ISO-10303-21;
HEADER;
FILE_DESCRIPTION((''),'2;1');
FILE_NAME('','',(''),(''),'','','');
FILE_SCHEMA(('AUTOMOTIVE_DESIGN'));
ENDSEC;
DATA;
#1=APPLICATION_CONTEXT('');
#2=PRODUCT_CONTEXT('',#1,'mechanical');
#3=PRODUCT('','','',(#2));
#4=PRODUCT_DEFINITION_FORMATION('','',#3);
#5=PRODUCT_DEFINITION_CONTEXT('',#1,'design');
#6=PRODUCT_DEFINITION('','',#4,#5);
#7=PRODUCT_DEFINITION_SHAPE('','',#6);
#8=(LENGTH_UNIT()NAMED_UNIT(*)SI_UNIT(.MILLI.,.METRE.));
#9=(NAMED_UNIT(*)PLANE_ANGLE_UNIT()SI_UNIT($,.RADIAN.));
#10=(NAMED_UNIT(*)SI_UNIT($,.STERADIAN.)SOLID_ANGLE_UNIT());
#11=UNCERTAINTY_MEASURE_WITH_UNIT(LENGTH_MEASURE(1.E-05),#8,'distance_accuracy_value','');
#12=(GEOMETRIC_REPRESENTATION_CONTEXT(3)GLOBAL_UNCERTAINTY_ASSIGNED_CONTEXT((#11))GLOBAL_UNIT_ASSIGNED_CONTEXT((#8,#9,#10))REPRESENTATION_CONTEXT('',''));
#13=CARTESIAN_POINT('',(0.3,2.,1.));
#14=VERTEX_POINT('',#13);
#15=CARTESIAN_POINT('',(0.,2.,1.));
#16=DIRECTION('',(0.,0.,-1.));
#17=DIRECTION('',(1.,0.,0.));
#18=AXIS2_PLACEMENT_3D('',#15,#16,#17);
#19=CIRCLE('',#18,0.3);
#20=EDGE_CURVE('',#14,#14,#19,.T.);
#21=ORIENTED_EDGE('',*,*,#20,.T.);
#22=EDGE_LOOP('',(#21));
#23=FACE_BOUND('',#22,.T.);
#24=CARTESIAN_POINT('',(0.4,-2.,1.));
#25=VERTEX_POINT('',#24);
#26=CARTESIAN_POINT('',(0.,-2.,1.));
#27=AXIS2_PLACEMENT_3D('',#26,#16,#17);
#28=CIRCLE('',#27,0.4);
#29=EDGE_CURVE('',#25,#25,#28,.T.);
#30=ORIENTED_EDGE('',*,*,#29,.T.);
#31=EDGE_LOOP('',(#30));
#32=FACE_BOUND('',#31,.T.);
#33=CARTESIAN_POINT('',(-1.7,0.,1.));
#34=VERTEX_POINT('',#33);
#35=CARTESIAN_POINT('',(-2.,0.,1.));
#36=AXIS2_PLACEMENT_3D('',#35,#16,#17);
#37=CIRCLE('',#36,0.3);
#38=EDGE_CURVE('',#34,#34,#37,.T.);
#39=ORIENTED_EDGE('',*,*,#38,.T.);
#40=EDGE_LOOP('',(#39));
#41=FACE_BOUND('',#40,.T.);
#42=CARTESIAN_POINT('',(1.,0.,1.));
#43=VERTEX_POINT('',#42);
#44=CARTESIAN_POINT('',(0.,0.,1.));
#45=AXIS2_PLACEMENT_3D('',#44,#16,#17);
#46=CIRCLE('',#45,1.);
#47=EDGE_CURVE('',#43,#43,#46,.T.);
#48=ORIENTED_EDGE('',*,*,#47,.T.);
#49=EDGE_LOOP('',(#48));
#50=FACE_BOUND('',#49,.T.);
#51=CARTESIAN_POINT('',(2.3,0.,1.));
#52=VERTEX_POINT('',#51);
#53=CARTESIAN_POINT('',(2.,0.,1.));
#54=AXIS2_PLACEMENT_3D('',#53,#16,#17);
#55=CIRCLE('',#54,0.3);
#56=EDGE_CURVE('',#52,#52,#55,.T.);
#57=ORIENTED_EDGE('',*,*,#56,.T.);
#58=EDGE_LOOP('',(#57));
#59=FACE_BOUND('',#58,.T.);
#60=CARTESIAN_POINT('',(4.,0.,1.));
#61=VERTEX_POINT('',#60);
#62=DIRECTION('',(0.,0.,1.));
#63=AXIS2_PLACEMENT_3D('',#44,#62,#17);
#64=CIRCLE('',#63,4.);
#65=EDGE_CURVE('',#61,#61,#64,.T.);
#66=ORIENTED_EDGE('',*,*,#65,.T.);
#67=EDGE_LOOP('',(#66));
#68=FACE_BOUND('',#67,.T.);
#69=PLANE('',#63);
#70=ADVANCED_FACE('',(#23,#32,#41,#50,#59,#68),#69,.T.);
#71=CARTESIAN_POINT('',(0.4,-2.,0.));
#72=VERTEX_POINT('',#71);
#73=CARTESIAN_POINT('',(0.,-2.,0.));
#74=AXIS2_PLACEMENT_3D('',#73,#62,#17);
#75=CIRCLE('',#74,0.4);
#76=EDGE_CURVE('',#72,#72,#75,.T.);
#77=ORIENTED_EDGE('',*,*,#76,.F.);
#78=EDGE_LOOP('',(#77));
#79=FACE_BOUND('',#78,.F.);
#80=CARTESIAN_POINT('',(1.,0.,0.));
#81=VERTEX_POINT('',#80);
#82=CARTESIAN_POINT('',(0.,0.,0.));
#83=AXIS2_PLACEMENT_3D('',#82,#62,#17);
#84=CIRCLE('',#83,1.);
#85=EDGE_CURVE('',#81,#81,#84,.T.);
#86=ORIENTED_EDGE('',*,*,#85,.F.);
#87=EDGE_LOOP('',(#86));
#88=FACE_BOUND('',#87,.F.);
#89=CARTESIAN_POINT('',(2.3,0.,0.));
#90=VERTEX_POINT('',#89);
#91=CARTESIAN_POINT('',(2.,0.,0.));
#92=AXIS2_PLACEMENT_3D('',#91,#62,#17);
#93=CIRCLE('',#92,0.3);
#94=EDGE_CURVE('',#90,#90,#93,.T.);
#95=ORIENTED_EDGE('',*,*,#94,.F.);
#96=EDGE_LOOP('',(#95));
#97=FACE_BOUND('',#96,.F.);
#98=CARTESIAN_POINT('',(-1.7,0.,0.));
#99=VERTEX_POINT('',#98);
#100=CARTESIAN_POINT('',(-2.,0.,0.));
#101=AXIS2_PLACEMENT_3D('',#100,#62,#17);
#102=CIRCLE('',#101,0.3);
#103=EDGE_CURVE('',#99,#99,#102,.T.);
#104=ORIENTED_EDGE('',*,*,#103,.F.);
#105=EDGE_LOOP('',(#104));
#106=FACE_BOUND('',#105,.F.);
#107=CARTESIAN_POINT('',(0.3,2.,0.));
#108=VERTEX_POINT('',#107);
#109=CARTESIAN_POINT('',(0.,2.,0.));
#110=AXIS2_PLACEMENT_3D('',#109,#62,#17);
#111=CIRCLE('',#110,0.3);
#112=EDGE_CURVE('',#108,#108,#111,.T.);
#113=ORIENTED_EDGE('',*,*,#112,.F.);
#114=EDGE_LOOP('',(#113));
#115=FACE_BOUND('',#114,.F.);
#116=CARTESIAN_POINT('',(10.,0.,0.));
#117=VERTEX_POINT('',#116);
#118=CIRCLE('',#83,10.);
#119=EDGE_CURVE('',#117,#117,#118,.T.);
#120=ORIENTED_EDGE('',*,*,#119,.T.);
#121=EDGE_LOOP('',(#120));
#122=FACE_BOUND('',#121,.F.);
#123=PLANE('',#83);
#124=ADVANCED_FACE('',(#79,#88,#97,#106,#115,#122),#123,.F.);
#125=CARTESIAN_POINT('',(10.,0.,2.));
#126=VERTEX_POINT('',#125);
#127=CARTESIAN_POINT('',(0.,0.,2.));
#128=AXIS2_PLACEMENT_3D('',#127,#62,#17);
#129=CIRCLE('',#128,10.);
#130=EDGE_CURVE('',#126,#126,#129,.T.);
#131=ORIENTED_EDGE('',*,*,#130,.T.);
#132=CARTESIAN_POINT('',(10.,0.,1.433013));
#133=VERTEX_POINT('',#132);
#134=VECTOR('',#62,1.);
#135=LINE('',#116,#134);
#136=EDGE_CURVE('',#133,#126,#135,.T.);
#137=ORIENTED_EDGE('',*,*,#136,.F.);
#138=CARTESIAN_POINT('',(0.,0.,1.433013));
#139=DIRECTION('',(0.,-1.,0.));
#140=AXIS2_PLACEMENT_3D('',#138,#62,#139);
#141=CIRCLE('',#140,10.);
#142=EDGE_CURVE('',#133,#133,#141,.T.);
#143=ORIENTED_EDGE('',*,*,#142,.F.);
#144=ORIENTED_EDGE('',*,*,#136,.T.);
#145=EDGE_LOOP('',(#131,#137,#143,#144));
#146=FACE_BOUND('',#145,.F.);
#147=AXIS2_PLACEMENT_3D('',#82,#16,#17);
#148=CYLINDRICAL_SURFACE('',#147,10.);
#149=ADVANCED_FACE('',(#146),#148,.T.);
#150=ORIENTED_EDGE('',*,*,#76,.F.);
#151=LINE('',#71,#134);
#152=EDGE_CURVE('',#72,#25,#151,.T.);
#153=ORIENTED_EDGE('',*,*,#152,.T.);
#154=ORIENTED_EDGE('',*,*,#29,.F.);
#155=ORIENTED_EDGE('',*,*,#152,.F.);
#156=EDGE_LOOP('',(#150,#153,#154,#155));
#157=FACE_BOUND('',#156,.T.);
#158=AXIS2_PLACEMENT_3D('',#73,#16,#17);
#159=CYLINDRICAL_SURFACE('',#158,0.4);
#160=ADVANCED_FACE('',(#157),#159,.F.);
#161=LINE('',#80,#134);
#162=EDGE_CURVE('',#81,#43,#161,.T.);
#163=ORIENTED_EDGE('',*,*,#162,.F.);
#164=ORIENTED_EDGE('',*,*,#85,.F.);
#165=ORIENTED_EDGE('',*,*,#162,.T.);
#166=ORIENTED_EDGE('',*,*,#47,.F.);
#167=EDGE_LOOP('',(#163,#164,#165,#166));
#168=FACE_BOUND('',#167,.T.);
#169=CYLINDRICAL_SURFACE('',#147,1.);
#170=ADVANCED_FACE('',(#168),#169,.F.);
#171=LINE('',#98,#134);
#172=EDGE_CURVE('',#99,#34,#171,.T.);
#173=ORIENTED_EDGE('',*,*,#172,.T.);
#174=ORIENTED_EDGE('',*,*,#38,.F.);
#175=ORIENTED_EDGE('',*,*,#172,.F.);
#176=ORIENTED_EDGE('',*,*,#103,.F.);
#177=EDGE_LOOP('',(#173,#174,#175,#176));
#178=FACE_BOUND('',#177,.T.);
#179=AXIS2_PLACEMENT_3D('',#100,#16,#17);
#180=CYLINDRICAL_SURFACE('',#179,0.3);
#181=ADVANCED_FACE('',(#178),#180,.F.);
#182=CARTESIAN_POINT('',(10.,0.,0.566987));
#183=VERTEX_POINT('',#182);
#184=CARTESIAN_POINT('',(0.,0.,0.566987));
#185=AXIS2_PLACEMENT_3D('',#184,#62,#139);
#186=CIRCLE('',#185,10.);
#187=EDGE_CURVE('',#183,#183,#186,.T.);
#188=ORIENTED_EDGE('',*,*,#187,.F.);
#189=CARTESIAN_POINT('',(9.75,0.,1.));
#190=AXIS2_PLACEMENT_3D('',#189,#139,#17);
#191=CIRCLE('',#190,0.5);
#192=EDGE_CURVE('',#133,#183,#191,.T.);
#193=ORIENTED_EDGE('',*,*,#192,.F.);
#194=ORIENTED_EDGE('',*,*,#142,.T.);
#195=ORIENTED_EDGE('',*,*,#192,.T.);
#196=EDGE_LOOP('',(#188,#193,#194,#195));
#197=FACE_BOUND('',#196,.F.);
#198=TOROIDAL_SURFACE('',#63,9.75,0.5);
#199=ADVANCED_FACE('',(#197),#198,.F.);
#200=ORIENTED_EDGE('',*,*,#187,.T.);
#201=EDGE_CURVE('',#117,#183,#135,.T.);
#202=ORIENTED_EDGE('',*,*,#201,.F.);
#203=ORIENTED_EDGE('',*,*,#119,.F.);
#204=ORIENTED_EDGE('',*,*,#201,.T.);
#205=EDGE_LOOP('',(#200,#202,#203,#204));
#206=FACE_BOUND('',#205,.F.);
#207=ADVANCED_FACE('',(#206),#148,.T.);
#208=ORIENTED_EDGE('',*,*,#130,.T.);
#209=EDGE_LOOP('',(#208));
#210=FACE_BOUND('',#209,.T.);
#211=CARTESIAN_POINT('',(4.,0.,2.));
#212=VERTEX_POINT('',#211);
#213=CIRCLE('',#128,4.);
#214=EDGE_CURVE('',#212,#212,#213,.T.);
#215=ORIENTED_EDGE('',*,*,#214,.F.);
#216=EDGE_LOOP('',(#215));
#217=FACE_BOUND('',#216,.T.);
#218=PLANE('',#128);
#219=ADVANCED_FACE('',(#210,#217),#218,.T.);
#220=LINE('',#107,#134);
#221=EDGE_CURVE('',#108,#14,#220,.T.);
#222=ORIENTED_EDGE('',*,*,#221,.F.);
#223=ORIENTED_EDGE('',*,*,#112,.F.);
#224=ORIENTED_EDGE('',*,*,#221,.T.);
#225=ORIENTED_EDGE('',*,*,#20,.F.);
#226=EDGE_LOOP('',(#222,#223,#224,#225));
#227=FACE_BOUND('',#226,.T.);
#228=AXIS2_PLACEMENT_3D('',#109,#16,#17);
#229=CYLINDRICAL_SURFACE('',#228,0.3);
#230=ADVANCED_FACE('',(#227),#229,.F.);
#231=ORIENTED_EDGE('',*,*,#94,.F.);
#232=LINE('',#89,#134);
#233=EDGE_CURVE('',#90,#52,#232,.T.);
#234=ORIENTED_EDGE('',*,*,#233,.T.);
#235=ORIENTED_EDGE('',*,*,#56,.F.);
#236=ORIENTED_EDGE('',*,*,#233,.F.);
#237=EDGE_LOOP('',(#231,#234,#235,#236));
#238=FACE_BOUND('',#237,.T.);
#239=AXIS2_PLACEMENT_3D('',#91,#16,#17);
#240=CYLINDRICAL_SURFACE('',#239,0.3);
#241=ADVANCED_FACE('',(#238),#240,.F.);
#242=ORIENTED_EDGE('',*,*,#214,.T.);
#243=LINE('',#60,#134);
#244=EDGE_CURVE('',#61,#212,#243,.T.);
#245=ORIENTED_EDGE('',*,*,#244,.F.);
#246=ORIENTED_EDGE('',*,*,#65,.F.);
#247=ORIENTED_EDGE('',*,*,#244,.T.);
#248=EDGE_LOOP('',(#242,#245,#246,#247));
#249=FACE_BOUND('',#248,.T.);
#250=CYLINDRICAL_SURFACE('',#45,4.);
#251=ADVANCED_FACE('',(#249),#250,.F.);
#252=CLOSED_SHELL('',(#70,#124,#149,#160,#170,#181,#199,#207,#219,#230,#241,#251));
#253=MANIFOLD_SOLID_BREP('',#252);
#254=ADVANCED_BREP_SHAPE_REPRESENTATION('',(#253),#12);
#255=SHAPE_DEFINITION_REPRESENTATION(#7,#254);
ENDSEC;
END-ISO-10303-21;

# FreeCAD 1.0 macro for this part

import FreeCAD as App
import Part
import Sketcher

doc = App.newDocument("Part")
body = doc.addObject("PartDesign::Body", "Body")

sketch1 = body.newObject("Sketcher::SketchObject", "Sketch")
sketch1.AttachmentSupport = (doc.getObject("XY_Plane"), [""])
sketch1.MapMode = "FlatFace"
sketch1.addGeometry(Part.Circle(App.Vector(0, -2, 0), App.Vector(0, 0, 1), 0.4), False)
sketch1.addConstraint([
    Sketcher.Constraint("PointOnObject", 0, 3, -2),
    Sketcher.Constraint("Diameter", 0, 0.8),
    Sketcher.Constraint("DistanceY", 0, 3, -1, 1, 2.0),
])
pad1 = body.newObject("PartDesign::Pad", "Pad")
pad1.Profile = sketch1
pad1.Length = 10
body2 = doc.addObject("PartDesign::Body", "Body001")

sketch2 = body2.newObject("Sketcher::SketchObject", "Sketch001")
sketch2.AttachmentSupport = (doc.getObject("XY_Plane001"), [""])
sketch2.MapMode = "FlatFace"
sketch2.addGeometry(Part.Circle(App.Vector(0, 2, 0), App.Vector(0, 0, 1), 0.3), False)
sketch2.addConstraint([
    Sketcher.Constraint("PointOnObject", 0, 3, -2),
    Sketcher.Constraint("Diameter", 0, 0.6),
    Sketcher.Constraint("DistanceY", -1, 1, 0, 3, 2.0),
])
pad2 = body2.newObject("PartDesign::Pad", "Pad001")
pad2.Profile = sketch2
pad2.Length = 10
body3 = doc.addObject("PartDesign::Body", "Body002")

sketch3 = body3.newObject("Sketcher::SketchObject", "Sketch002")
sketch3.AttachmentSupport = (doc.getObject("XY_Plane002"), [""])
sketch3.MapMode = "FlatFace"
sketch3.addGeometry(Part.Circle(App.Vector(2, 0, 0), App.Vector(0, 0, 1), 0.3), False)
sketch3.addConstraint([
    Sketcher.Constraint("PointOnObject", 0, 3, -1),
    Sketcher.Constraint("Diameter", 0, 0.6),
    Sketcher.Constraint("DistanceX", -1, 1, 0, 3, 2.0),
])
pad3 = body3.newObject("PartDesign::Pad", "Pad002")
pad3.Profile = sketch3
pad3.Length = 10
body4 = doc.addObject("PartDesign::Body", "Body003")

sketch4 = body4.newObject("Sketcher::SketchObject", "Sketch003")
sketch4.AttachmentSupport = (doc.getObject("XY_Plane003"), [""])
sketch4.MapMode = "FlatFace"
sketch4.addGeometry(Part.Circle(App.Vector(-2, 0, 0), App.Vector(0, 0, 1), 0.3), False)
sketch4.addConstraint([
    Sketcher.Constraint("PointOnObject", 0, 3, -1),
    Sketcher.Constraint("Diameter", 0, 0.6),
    Sketcher.Constraint("DistanceX", 0, 3, -1, 1, 2.0),
])
pad4 = body4.newObject("PartDesign::Pad", "Pad003")
pad4.Profile = sketch4
pad4.Length = 10
body5 = doc.addObject("PartDesign::Body", "Body004")

sketch5 = body5.newObject("Sketcher::SketchObject", "Sketch004")
sketch5.AttachmentSupport = (doc.getObject("XY_Plane004"), [""])
sketch5.MapMode = "FlatFace"
sketch5.addGeometry(Part.Circle(App.Vector(0, 0, 0), App.Vector(0, 0, 1), 1), False)
sketch5.addConstraint([
    Sketcher.Constraint("Coincident", 0, 3, -1, 1),
    Sketcher.Constraint("Diameter", 0, 2.0),
])
pad5 = body5.newObject("PartDesign::Pad", "Pad004")
pad5.Profile = sketch5
pad5.Length = 10
body6 = doc.addObject("PartDesign::Body", "Body005")

sketch6 = body6.newObject("Sketcher::SketchObject", "Sketch005")
sketch6.AttachmentSupport = (doc.getObject("XY_Plane005"), [""])
sketch6.MapMode = "FlatFace"
sketch6.AttachmentOffset = App.Placement(App.Vector(0, 0, 1), App.Rotation())
sketch6.addGeometry(Part.Circle(App.Vector(0, 0, 0), App.Vector(0, 0, 1), 4), False)
sketch6.addConstraint([
    Sketcher.Constraint("Coincident", 0, 3, -1, 1),
    Sketcher.Constraint("Diameter", 0, 8.0),
])
pad6 = body6.newObject("PartDesign::Pad", "Pad005")
pad6.Profile = sketch6
pad6.Length = 1
body7 = doc.addObject("PartDesign::Body", "Body006")

sketch7 = body7.newObject("Sketcher::SketchObject", "Sketch006")
sketch7.AttachmentSupport = (doc.getObject("XZ_Plane006"), [""])
sketch7.MapMode = "FlatFace"
sketch7.addGeometry(Part.Circle(App.Vector(9.8, 1, 0), App.Vector(0, 0, 1), 0.5), False)
sketch7.addConstraint([
    Sketcher.Constraint("Diameter", 0, 1.0),
    Sketcher.Constraint("DistanceY", -1, 1, 0, 3, 1.0),
    Sketcher.Constraint("DistanceX", -1, 1, 0, 3, 9.75),
])
revolution = body7.newObject("PartDesign::Revolution", "Revolution")
revolution.Profile = sketch7
revolution.ReferenceAxis = (sketch7, ["V_Axis"])
revolution.Angle = 360
body8 = doc.addObject("PartDesign::Body", "Body007")

sketch8 = body8.newObject("Sketcher::SketchObject", "Sketch007")
sketch8.AttachmentSupport = (doc.getObject("XY_Plane007"), [""])
sketch8.MapMode = "FlatFace"
sketch8.addGeometry(Part.Circle(App.Vector(0, 0, 0), App.Vector(0, 0, 1), 10), False)
sketch8.addConstraint([
    Sketcher.Constraint("Coincident", 0, 3, -1, 1),
    Sketcher.Constraint("Diameter", 0, 20.0),
])
pad7 = body8.newObject("PartDesign::Pad", "Pad006")
pad7.Profile = sketch8
pad7.Length = 2
doc.recompute()

boolean = body8.newObject("PartDesign::Boolean", "Boolean")
boolean.Type = "Cut"
boolean.addObjects([body7])
doc.recompute()

boolean2 = body8.newObject("PartDesign::Boolean", "Boolean001")
boolean2.Type = "Cut"
boolean2.addObjects([body6])
doc.recompute()

boolean3 = body8.newObject("PartDesign::Boolean", "Boolean002")
boolean3.Type = "Cut"
boolean3.addObjects([body5])
doc.recompute()

boolean4 = body8.newObject("PartDesign::Boolean", "Boolean003")
boolean4.Type = "Cut"
boolean4.addObjects([body4])
doc.recompute()

boolean5 = body8.newObject("PartDesign::Boolean", "Boolean004")
boolean5.Type = "Cut"
boolean5.addObjects([body3])
doc.recompute()

boolean6 = body8.newObject("PartDesign::Boolean", "Boolean005")
boolean6.Type = "Cut"
boolean6.addObjects([body2])
doc.recompute()

boolean7 = body8.newObject("PartDesign::Boolean", "Boolean006")
boolean7.Type = "Cut"
boolean7.addObjects([body])

doc.recompute()
